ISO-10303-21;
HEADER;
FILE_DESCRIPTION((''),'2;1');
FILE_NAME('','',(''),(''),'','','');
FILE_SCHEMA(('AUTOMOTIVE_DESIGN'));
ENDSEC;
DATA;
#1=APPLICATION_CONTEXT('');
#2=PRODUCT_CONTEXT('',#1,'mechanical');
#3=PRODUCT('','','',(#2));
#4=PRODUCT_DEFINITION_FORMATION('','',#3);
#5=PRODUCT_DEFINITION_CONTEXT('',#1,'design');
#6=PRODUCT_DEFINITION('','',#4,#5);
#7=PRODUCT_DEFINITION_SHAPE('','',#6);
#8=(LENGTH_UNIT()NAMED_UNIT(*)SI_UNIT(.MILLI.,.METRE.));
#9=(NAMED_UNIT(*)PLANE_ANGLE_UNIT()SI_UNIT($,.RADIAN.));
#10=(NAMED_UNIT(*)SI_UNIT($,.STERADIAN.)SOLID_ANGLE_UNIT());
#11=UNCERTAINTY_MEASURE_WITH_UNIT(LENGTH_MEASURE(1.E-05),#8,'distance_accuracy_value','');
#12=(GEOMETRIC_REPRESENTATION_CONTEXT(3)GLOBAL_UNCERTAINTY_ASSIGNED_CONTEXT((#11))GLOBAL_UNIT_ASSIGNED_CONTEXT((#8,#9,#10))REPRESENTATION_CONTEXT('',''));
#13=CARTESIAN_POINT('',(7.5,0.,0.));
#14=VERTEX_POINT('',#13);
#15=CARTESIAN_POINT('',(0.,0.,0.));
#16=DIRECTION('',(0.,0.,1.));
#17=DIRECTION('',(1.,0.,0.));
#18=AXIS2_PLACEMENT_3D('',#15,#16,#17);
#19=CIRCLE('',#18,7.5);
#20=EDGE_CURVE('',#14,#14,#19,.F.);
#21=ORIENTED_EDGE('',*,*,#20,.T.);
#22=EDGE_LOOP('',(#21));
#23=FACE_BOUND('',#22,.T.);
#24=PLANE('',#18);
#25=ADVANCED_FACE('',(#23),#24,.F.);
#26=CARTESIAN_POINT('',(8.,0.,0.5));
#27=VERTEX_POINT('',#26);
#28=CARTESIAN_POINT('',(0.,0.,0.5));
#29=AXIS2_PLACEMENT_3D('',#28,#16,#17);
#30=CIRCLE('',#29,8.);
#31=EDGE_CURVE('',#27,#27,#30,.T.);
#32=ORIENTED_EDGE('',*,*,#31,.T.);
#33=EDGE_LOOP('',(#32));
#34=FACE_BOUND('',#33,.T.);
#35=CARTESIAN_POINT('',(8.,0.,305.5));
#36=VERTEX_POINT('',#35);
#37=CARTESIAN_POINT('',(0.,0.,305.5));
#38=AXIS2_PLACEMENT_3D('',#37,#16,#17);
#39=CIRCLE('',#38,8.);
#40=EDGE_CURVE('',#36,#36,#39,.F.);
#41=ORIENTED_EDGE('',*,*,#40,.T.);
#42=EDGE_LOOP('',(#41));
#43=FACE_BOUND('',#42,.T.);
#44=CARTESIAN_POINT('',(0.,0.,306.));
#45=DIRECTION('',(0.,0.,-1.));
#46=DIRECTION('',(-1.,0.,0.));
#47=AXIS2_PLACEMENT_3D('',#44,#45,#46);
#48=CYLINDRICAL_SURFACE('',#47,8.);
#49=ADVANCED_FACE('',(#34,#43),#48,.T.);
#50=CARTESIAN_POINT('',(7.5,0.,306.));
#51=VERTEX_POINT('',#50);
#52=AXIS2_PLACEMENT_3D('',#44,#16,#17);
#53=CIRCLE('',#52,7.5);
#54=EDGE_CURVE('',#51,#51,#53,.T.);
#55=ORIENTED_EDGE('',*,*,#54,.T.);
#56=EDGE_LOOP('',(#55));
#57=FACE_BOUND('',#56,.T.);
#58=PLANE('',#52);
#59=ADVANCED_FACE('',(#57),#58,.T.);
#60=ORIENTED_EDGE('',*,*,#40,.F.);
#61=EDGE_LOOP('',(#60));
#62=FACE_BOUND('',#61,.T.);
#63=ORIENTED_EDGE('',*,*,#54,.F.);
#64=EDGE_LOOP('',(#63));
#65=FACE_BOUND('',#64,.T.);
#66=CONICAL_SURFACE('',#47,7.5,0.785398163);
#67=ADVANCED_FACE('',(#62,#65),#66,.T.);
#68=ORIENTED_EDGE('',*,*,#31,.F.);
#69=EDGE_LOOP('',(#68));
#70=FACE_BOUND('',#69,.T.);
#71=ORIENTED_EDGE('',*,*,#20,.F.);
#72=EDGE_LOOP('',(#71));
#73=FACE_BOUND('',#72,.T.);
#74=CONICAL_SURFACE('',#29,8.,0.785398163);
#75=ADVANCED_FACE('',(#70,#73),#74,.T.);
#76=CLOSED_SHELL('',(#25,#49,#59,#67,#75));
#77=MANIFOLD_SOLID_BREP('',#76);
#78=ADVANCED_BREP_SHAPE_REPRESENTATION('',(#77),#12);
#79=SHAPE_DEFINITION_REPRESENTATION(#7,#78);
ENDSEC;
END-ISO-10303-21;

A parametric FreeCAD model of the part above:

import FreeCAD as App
import Part
import Sketcher

V = App.Vector
Q = App.Units.Quantity


def edges_at(feature, points):
    """Names of the edges that pass closest to the given points."""
    edges = feature.Shape.Edges
    near = lambda p: min(range(len(edges)), key=lambda i: edges[i].distToShape(Part.Vertex(*p))[0])
    return sorted({f"Edge{near(p) + 1}" for p in points})

doc = App.newDocument("Part")
body = doc.addObject("PartDesign::Body", "Body")

sketch1 = body.newObject("Sketcher::SketchObject", "Sketch")
sketch1.AttachmentSupport = (doc.getObject("XY_Plane"), [""])
sketch1.MapMode = "FlatFace"
sketch1.addGeometry(Part.Circle(V(0, 0, 0), V(0, 0, 1), 8), False)
sketch1.addConstraint([
    Sketcher.Constraint("Coincident", 0, 3, -1, 1),
    Sketcher.Constraint("Diameter", 0, Q("16 mm")),
])
pad1 = body.newObject("PartDesign::Pad", "Pad")
pad1.Profile = sketch1
pad1.Length = 306
doc.recompute()

chamfer = body.newObject("PartDesign::Chamfer", "Chamfer")
chamfer.Base = (pad1, edges_at(pad1, [(-8, 0, 0), (-8, 0, 306)]))
chamfer.Size = 0.5

doc.recompute()
